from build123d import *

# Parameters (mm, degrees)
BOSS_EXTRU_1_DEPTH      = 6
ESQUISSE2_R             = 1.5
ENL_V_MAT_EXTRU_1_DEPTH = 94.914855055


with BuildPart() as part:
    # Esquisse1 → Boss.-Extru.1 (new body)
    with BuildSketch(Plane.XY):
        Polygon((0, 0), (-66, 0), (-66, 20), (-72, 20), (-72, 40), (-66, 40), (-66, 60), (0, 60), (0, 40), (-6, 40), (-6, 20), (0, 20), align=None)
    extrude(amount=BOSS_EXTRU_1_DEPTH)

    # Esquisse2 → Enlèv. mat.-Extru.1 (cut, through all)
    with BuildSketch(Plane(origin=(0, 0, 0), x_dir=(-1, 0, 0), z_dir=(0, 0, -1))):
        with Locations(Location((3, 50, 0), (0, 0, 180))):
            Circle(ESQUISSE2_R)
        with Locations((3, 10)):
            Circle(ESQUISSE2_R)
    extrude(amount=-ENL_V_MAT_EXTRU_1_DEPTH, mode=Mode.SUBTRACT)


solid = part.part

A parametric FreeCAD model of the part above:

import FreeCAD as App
import Part
import Sketcher
Q = App.Units.Quantity


def add_polygon(sketch, points):
    """Adds a closed chain of lines whose ends are joined by coincident constraints."""
    first, n = sketch.GeometryCount, len(points)
    for a, b in zip(points, points[1:] + points[:1]):
        sketch.addGeometry(Part.LineSegment(App.Vector(*a, 0), App.Vector(*b, 0)), False)
    for i in range(n):
        sketch.addConstraint(Sketcher.Constraint("Coincident", first + i, 2, first + (i + 1) % n, 1))

doc = App.newDocument("Part")
body = doc.addObject("PartDesign::Body", "Body")

# Sketch on XY plane
sketch1 = body.newObject("Sketcher::SketchObject", "Sketch")
sketch1.AttachmentSupport = (doc.getObject("XY_Plane"), [""])
sketch1.MapMode = "FlatFace"
add_polygon(sketch1, [(-66, 0), (0, 0), (0, 20), (-6, 20), (-6, 40), (0, 40), (0, 60), (-66, 60), (-66, 40), (-72, 40), (-72, 20), (-66, 20)])  # lines 0-11
sketch1.addConstraint([
    Sketcher.Constraint("Horizontal", 0),
    Sketcher.Constraint("Vertical", 1),
    Sketcher.Constraint("Horizontal", 2),
    Sketcher.Constraint("Vertical", 3),
    Sketcher.Constraint("Horizontal", 4),
    Sketcher.Constraint("Vertical", 5),
    Sketcher.Constraint("Horizontal", 6),
    Sketcher.Constraint("Vertical", 7),
    Sketcher.Constraint("Horizontal", 8),
    Sketcher.Constraint("Vertical", 9),
    Sketcher.Constraint("Horizontal", 10),
    Sketcher.Constraint("Vertical", 11),
    Sketcher.Constraint("Coincident", 0, 2, -1, 1),
    Sketcher.Constraint("PointOnObject", 4, 2, -2),
    Sketcher.Constraint("Horizontal", 4, 2, 7, 2),
    Sketcher.Constraint("Horizontal", 2, 2, 9, 2),
    Sketcher.Constraint("Vertical", 7, 2, 10, 2),
    Sketcher.Constraint("Equal", 4, 8),
    Sketcher.Constraint("Equal", 1, 3),
    Sketcher.Constraint("Equal", 3, 5),
    Sketcher.Constraint("DistanceX", 0, 1, 0, 2, Q("66 mm")),
    Sketcher.Constraint("DistanceX", 2, 2, 2, 1, Q("6 mm")),
    Sketcher.Constraint("DistanceY", 1, 1, 1, 2, Q("20 mm")),
])
pad1 = body.newObject("PartDesign::Pad", "Pad")
pad1.Profile = sketch1
pad1.Length = 6

# Sketch on XY plane
sketch2 = body.newObject("Sketcher::SketchObject", "Sketch001")
sketch2.AttachmentSupport = (doc.getObject("XY_Plane"), [""])
sketch2.MapMode = "FlatFace"
sketch2.addGeometry([
    Part.Circle(App.Vector(-3, 50, 0), App.Vector(0, 0, 1), 1.5),
    Part.Circle(App.Vector(-3, 10, 0), App.Vector(0, 0, 1), 1.5),
], False)
sketch2.addConstraint([
    Sketcher.Constraint("Equal", 0, 1),
    Sketcher.Constraint("Vertical", 0, 3, 1, 3),
    Sketcher.Constraint("Diameter", 0, Q("3 mm")),
    Sketcher.Constraint("DistanceX", 0, 3, -1, 1, Q("3 mm")),
    Sketcher.Constraint("DistanceY", -1, 1, 0, 3, Q("50 mm")),
    Sketcher.Constraint("DistanceY", -1, 1, 1, 3, Q("10 mm")),
])
pocket1 = body.newObject("PartDesign::Pocket", "Pocket")
pocket1.Profile = sketch2
pocket1.Type = "ThroughAll"
pocket1.Reversed = True

doc.recompute()
